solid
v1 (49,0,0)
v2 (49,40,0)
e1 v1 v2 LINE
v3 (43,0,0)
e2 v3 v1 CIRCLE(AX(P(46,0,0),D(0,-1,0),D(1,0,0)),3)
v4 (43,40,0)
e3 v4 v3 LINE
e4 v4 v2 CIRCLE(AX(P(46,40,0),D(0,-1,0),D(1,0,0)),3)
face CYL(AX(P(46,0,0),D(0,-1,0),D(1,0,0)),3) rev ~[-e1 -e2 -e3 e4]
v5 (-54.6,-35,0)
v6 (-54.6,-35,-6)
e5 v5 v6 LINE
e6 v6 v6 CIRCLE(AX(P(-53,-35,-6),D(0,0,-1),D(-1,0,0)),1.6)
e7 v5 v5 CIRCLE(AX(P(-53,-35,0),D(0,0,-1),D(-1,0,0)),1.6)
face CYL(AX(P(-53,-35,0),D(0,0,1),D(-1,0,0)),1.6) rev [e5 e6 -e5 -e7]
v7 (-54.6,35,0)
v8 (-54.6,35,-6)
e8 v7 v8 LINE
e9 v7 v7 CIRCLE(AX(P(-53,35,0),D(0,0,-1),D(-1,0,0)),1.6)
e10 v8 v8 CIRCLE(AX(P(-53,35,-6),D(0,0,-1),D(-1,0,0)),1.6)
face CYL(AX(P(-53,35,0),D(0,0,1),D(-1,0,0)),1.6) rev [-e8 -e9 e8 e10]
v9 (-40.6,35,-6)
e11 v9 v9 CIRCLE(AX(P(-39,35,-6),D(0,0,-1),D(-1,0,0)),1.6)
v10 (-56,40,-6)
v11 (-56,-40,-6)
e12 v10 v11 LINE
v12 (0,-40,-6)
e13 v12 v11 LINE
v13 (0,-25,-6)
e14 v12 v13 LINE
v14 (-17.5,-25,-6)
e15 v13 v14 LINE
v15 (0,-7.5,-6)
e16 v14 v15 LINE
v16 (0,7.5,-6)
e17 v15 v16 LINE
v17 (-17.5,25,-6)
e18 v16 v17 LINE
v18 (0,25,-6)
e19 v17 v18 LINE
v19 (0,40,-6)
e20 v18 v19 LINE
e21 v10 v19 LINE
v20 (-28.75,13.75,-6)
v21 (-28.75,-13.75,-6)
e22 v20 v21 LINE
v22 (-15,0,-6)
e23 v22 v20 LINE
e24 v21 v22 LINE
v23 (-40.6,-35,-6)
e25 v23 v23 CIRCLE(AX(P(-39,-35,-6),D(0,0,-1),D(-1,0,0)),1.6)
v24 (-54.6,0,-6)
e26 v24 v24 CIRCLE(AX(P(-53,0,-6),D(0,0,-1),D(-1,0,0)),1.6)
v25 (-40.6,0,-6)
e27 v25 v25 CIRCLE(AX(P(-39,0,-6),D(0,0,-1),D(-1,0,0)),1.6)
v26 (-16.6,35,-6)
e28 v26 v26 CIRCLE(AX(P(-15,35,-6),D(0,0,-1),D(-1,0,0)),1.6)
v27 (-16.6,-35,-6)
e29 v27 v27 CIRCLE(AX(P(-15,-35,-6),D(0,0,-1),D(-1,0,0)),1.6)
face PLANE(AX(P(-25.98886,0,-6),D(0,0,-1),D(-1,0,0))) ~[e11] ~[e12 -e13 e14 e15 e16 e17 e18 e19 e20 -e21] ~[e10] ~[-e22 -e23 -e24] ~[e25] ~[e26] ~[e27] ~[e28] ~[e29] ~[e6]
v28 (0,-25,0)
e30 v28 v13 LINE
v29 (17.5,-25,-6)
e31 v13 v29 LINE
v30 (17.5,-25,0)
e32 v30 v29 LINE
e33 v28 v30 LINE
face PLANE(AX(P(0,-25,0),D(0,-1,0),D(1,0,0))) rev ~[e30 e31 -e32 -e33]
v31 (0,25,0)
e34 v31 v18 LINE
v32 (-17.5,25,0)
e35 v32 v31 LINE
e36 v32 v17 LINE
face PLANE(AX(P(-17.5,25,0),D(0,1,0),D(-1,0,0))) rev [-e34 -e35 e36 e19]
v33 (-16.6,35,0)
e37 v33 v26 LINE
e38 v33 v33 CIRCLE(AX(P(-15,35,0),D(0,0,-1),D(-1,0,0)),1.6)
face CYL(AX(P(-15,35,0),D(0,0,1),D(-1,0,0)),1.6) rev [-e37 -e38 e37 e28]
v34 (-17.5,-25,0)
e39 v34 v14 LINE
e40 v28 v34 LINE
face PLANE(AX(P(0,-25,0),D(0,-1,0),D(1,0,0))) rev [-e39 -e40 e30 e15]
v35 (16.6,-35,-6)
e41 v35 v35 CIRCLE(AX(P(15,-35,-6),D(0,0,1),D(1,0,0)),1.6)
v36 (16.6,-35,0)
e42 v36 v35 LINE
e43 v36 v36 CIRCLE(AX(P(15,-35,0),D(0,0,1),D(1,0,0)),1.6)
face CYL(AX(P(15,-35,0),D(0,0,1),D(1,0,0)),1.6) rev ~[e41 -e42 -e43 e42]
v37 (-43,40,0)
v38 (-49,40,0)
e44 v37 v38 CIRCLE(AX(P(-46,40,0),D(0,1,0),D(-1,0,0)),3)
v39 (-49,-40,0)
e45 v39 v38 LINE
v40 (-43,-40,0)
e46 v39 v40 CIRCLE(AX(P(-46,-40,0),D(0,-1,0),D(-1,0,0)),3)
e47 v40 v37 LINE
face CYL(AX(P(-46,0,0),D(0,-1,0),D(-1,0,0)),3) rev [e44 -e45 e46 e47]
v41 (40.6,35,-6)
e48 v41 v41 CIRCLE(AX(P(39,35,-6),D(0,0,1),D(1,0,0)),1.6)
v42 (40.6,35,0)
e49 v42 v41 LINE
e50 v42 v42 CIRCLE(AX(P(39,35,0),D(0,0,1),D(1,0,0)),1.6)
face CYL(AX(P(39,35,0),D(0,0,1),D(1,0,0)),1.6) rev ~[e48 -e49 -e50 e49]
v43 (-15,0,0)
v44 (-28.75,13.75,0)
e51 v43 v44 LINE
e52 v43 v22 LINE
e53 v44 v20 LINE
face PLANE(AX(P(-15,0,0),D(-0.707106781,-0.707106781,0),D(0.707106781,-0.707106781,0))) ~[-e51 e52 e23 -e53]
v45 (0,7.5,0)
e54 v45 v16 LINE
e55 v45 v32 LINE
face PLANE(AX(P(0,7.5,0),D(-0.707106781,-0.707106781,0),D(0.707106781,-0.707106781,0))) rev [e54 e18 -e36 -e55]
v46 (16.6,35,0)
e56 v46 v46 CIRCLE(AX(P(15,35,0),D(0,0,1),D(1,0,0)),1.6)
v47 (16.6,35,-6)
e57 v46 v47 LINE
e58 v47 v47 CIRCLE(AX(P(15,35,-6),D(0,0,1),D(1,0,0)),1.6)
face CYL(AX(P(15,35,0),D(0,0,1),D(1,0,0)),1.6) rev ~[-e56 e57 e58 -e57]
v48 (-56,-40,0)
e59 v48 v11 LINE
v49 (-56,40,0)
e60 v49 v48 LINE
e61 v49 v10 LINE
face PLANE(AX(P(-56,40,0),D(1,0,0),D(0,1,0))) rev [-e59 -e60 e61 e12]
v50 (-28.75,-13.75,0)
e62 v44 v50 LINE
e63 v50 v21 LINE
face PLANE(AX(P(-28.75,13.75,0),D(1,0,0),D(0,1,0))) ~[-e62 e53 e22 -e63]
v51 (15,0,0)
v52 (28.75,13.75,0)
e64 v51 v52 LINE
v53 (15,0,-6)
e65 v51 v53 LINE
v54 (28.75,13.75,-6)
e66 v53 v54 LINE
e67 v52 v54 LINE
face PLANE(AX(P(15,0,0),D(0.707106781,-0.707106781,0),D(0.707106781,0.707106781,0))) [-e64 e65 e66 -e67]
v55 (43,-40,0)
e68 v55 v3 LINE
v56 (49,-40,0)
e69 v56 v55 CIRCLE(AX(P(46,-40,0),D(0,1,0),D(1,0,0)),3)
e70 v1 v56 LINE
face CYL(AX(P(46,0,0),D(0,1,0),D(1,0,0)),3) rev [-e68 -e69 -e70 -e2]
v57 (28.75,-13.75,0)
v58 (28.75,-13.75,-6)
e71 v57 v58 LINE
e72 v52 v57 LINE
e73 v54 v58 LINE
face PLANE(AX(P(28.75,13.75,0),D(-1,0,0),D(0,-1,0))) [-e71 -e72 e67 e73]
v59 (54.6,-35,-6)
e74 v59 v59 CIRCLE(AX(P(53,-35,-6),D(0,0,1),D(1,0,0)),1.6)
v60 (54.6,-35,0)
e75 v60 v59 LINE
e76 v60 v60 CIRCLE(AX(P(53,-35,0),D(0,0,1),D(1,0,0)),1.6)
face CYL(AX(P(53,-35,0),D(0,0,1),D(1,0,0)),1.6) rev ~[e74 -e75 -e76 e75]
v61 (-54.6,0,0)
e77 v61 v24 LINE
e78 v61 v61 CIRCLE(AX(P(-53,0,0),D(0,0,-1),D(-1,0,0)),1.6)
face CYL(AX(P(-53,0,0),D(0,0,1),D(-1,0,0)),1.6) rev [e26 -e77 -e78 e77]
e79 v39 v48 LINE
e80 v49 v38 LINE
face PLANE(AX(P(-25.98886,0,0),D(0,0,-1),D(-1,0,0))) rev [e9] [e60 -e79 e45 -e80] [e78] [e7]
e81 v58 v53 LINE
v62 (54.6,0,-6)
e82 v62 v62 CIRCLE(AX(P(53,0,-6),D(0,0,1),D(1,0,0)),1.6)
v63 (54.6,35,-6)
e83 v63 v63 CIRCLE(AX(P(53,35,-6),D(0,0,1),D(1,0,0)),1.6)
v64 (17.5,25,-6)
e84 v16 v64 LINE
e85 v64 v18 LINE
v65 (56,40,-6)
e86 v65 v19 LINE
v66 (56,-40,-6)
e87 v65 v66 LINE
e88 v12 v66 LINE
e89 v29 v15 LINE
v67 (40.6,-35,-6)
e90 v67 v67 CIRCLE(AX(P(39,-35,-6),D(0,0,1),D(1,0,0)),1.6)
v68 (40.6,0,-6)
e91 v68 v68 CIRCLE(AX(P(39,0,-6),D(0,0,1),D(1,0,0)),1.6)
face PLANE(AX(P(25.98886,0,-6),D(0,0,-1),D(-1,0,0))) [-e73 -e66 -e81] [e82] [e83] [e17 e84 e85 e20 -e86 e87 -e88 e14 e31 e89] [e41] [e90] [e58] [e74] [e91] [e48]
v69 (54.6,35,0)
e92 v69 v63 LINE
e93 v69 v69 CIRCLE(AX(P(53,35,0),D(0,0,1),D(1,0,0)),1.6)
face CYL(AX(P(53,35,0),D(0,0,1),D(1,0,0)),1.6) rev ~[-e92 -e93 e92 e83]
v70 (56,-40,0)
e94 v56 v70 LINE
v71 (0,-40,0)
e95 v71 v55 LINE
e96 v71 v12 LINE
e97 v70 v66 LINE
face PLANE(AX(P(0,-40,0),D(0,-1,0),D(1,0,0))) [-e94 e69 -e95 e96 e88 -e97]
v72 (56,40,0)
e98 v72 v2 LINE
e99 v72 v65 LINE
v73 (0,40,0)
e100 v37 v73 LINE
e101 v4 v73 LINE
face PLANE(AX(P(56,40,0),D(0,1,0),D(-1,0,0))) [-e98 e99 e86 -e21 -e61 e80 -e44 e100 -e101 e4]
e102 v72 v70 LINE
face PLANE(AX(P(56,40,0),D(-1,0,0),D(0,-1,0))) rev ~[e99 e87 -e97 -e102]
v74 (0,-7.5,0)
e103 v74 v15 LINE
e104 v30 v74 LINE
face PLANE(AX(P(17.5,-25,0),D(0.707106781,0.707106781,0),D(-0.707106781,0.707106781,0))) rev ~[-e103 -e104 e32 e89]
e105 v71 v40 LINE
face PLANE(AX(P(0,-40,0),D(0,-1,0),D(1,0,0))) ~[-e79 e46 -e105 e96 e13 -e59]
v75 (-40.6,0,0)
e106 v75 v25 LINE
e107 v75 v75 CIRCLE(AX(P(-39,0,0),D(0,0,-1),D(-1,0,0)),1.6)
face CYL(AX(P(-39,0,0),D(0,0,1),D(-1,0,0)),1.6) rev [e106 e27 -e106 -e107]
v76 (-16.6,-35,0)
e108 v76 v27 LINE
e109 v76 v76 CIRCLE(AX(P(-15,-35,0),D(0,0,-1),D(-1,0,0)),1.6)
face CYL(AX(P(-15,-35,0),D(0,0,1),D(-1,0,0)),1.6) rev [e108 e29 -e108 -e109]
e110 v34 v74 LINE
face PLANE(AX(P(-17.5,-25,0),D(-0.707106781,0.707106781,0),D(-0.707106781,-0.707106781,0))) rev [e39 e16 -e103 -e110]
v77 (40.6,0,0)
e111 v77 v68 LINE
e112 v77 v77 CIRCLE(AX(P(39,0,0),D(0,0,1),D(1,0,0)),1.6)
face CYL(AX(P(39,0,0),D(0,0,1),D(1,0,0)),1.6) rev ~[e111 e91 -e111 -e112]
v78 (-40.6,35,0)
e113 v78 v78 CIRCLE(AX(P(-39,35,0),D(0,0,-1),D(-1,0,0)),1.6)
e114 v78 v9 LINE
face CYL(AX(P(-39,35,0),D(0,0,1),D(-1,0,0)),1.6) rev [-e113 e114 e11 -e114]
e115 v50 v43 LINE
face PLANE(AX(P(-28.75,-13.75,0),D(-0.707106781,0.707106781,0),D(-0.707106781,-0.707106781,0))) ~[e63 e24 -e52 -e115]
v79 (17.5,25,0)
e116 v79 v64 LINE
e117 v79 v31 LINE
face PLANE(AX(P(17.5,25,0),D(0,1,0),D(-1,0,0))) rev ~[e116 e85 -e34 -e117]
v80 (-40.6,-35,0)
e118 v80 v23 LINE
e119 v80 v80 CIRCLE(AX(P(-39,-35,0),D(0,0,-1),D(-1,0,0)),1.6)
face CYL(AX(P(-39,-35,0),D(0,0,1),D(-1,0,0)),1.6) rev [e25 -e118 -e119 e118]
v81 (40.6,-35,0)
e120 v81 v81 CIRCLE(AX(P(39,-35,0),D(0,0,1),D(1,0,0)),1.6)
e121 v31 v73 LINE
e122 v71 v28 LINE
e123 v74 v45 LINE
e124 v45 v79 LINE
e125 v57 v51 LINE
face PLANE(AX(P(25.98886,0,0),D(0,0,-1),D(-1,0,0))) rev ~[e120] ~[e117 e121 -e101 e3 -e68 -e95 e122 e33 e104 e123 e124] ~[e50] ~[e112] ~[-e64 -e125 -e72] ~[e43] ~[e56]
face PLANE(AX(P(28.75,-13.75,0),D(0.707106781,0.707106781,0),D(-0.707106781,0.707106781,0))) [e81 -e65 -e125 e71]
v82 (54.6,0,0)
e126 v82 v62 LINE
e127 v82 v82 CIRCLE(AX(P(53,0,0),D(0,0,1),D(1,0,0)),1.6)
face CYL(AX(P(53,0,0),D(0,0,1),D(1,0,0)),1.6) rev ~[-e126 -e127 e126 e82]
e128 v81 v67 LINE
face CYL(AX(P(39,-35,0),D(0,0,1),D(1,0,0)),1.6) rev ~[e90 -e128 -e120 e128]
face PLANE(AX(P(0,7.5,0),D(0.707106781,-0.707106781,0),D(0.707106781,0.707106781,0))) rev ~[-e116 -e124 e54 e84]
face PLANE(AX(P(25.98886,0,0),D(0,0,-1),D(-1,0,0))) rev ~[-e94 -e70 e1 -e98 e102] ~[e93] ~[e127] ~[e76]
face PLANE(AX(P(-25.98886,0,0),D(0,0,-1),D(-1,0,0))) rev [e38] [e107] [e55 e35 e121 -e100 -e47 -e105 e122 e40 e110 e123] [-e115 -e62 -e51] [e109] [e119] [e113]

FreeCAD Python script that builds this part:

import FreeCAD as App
import Part
import Sketcher
from FreeCAD import Vector

doc = App.newDocument("Part")
body = doc.addObject("PartDesign::Body", "Body")

# Sketch on XY plane
sketch1 = doc.addObject("Sketcher::SketchObject", "Sketch")
body.addObject(sketch1)
sketch1.AttachmentSupport = (doc.XY_Plane, [""])
sketch1.MapMode = "FlatFace"
sketch1.addGeometry([
    Part.LineSegment(Vector(56, 40, 0), Vector(0, 40, 0)),  # 0
    Part.LineSegment(Vector(0, 40, 0), Vector(0, 25, 0)),  # 1
    Part.LineSegment(Vector(0, 25, 0), Vector(17.5, 25, 0)),  # 2
    Part.LineSegment(Vector(17.5, 25, 0), Vector(0, 7.5, 0)),  # 3
    Part.LineSegment(Vector(0, 7.5, 0), Vector(0, -7.5, 0)),  # 4
    Part.LineSegment(Vector(0, -7.5, 0), Vector(17.5, -25, 0)),  # 5
    Part.LineSegment(Vector(17.5, -25, 0), Vector(0, -25, 0)),  # 6
    Part.LineSegment(Vector(0, -25, 0), Vector(0, -40, 0)),  # 7
    Part.LineSegment(Vector(0, -40, 0), Vector(56, -40, 0)),  # 8
    Part.LineSegment(Vector(56, -40, 0), Vector(56, 40, 0)),  # 9
    Part.Circle(Vector(53, -35, 0), Vector(0, 0, 1), 1.6),  # 10
    Part.Circle(Vector(39, -35, 0), Vector(0, 0, 1), 1.6),  # 11
    Part.Circle(Vector(15, -35, 0), Vector(0, 0, 1), 1.6),  # 12
    Part.Circle(Vector(53, 0, 0), Vector(0, 0, 1), 1.6),  # 13
    Part.Circle(Vector(39, 0, 0), Vector(0, 0, 1), 1.6),  # 14
    Part.Circle(Vector(53, 35, 0), Vector(0, 0, 1), 1.6),  # 15
    Part.Circle(Vector(39, 35, 0), Vector(0, 0, 1), 1.6),  # 16
    Part.LineSegment(Vector(15, 0, 0), Vector(28.8, 13.8, 0)),  # 17
    Part.LineSegment(Vector(28.8, 13.8, 0), Vector(28.8, -13.8, 0)),  # 18
    Part.LineSegment(Vector(28.8, -13.8, 0), Vector(15, 0, 0)),  # 19
    Part.Circle(Vector(15, 35, 0), Vector(0, 0, 1), 1.6),  # 20
], False)
sketch1.addConstraint([
    Sketcher.Constraint("Coincident", 0, 2, 1, 1),
    Sketcher.Constraint("Coincident", 1, 2, 2, 1),
    Sketcher.Constraint("Coincident", 2, 2, 3, 1),
    Sketcher.Constraint("Coincident", 3, 2, 4, 1),
    Sketcher.Constraint("Coincident", 4, 2, 5, 1),
    Sketcher.Constraint("Coincident", 5, 2, 6, 1),
    Sketcher.Constraint("Coincident", 6, 2, 7, 1),
    Sketcher.Constraint("Coincident", 7, 2, 8, 1),
    Sketcher.Constraint("Coincident", 8, 2, 9, 1),
    Sketcher.Constraint("Coincident", 9, 2, 0, 1),
    Sketcher.Constraint("Coincident", 17, 2, 18, 1),
    Sketcher.Constraint("Coincident", 18, 2, 19, 1),
    Sketcher.Constraint("Coincident", 19, 2, 17, 1),
    Sketcher.Constraint("Horizontal", 0),
    Sketcher.Constraint("Vertical", 1),
    Sketcher.Constraint("Horizontal", 2),
    Sketcher.Constraint("Vertical", 4),
    Sketcher.Constraint("Horizontal", 6),
    Sketcher.Constraint("Vertical", 7),
    Sketcher.Constraint("Horizontal", 8),
    Sketcher.Constraint("Vertical", 9),
    Sketcher.Constraint("Vertical", 18),
    Sketcher.Constraint("Equal", 10, 11),
    Sketcher.Constraint("Equal", 11, 12),
    Sketcher.Constraint("Equal", 12, 13),
    Sketcher.Constraint("Equal", 13, 14),
    Sketcher.Constraint("Equal", 14, 15),
    Sketcher.Constraint("Equal", 15, 16),
    Sketcher.Constraint("Equal", 16, 20),
    Sketcher.Constraint("Symmetric", 3, 2, 4, 2, -1, 1),
    Sketcher.Constraint("Symmetric", 1, 2, 6, 2, -1, 1),
    Sketcher.Constraint("Symmetric", 10, 3, 15, 3, -1),
    Sketcher.Constraint("Symmetric", 11, 3, 16, 3, -1),
    Sketcher.Constraint("Symmetric", 12, 3, 20, 3, -1),
    Sketcher.Constraint("Symmetric", 0, 2, 7, 2, -1),
    Sketcher.Constraint("PointOnObject", 13, 3, -1),
    Sketcher.Constraint("PointOnObject", 14, 3, -1),
    Sketcher.Constraint("PointOnObject", 19, 2, -1),
    Sketcher.Constraint("Perpendicular", 3, 5),
    Sketcher.Constraint("Perpendicular", 5, 17),
    Sketcher.Constraint("Perpendicular", 17, 19),
    Sketcher.Constraint("Horizontal", 10, 3, 11, 3),
    Sketcher.Constraint("Horizontal", 11, 3, 12, 3),
    Sketcher.Constraint("Vertical", 10, 3, 13, 3),
    Sketcher.Constraint("Vertical", 11, 3, 14, 3),
    Sketcher.Constraint("Vertical", 2, 2, 5, 2),
    Sketcher.Constraint("Vertical", 20, 3, 19, 2),
    Sketcher.Constraint("Equal", 1, 4),
    Sketcher.Constraint("Diameter", 10, 3.2),
    Sketcher.Constraint("DistanceX", 0, 2, 0, 1, 56.0),
    Sketcher.Constraint("DistanceY", 1, 2, 1, 1, 15.0),
    Sketcher.Constraint("DistanceY", 9, 1, 9, 2, 80.0),
    Sketcher.Constraint("DistanceY", 18, 2, 18, 1, 27.5),
    Sketcher.Constraint("DistanceX", -1, 1, 10, 3, 53.0),
    Sketcher.Constraint("DistanceY", 10, 3, -1, 1, 35.0),
    Sketcher.Constraint("DistanceX", -1, 1, 11, 3, 39.0),
    Sketcher.Constraint("DistanceX", -1, 1, 12, 3, 15.0),
])
pad1 = doc.addObject("PartDesign::Pad", "Pad")
body.addObject(pad1)
pad1.Profile = sketch1
pad1.Length = 6
pad1.Reversed = True

# Sketch on XZ plane
sketch2 = doc.addObject("Sketcher::SketchObject", "Sketch001")
body.addObject(sketch2)
sketch2.AttachmentSupport = (doc.XZ_Plane, [""])
sketch2.MapMode = "FlatFace"
sketch2.addGeometry(Part.Circle(Vector(46, 0, 0), Vector(0, 0, 1), 3), False)
sketch2.addConstraint([
    Sketcher.Constraint("PointOnObject", 0, 3, -1),
    Sketcher.Constraint("Diameter", 0, 6.0),
    Sketcher.Constraint("DistanceX", -1, 1, 0, 3, 46.0),
])
pocket1 = doc.addObject("PartDesign::Pocket", "Pocket")
body.addObject(pocket1)
pocket1.Profile = sketch2
pocket1.Type = "ThroughAll"
pocket1.Midplane = True
body2 = doc.addObject("PartDesign::Body", "Body001")
doc.recompute()

mirroring = doc.addObject("Part::Mirroring", "Mirroring")
mirroring.Source = body
mirroring.Base = Vector(0, 0, 0)
mirroring.Normal = Vector(1, 0, 0)
body2.BaseFeature = mirroring
doc.recompute()

boolean = doc.addObject("PartDesign::Boolean", "Boolean")
body2.addObject(boolean)
boolean.Type = "Fuse"
boolean.addObjects([body])
mirroring.Visibility = False

doc.recompute()
